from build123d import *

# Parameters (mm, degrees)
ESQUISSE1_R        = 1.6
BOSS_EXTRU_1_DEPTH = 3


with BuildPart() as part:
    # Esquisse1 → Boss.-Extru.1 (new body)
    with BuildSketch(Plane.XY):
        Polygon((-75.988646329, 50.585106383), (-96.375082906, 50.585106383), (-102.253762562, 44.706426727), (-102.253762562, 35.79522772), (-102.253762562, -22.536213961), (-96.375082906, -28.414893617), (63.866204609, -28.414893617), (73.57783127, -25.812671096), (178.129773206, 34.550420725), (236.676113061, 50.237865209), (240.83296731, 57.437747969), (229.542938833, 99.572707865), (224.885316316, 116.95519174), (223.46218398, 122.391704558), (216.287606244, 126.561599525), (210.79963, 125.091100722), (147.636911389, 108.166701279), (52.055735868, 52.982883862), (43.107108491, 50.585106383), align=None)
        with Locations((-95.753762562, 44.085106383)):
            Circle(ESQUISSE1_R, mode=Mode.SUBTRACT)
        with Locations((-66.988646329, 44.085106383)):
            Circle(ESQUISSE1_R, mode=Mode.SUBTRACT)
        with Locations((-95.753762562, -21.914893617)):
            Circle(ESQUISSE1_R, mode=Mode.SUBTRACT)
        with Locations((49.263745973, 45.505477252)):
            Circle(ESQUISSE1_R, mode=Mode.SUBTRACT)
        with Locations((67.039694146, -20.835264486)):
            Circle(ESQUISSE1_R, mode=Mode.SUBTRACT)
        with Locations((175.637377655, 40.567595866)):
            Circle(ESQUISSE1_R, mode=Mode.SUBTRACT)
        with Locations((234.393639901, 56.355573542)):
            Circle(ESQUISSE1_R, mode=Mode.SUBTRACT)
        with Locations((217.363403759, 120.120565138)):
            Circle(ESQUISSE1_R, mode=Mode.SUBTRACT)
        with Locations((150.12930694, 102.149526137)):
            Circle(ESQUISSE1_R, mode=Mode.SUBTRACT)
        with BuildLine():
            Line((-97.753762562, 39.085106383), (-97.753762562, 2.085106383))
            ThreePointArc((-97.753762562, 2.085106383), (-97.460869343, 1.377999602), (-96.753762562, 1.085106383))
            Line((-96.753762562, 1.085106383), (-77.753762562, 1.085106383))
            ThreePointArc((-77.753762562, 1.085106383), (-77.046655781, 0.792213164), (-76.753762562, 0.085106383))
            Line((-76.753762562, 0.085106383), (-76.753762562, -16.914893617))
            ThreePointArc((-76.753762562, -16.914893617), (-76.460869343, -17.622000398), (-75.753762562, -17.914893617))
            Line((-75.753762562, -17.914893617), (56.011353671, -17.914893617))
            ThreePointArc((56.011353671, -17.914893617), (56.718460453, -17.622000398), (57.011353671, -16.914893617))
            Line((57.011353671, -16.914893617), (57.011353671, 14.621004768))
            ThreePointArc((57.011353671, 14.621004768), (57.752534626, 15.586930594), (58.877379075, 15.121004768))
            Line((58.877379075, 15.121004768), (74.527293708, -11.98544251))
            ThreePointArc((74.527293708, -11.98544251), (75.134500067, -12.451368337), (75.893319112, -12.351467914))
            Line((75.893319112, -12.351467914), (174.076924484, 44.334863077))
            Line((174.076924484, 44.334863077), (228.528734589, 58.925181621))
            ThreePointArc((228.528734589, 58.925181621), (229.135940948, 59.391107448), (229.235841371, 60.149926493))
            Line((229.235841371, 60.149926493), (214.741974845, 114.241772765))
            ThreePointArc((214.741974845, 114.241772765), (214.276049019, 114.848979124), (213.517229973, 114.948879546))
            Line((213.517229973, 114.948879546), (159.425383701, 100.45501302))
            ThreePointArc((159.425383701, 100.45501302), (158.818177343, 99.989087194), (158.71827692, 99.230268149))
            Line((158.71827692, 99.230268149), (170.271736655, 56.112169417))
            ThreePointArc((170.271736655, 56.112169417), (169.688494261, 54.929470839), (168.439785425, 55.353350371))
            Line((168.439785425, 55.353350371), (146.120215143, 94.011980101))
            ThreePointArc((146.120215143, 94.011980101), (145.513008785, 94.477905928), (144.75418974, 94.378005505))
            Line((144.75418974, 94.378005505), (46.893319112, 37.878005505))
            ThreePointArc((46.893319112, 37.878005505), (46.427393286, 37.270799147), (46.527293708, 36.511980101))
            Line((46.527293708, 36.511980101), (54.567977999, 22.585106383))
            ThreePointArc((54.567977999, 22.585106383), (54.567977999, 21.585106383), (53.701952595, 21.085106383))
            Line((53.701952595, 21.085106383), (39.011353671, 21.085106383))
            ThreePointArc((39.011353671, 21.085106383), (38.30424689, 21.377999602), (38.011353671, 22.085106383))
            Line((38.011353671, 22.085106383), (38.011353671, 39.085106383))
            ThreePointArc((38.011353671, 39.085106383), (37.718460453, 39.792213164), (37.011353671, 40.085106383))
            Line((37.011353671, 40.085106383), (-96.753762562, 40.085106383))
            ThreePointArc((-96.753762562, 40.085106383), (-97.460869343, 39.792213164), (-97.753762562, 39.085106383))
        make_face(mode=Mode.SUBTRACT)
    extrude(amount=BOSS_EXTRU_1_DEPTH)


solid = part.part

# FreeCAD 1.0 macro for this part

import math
import FreeCAD as App
import Part
import Sketcher
Q = App.Units.Quantity


def add_polygon(sketch, points):
    """Adds a closed chain of lines whose ends are joined by coincident constraints."""
    first, n = sketch.GeometryCount, len(points)
    for a, b in zip(points, points[1:] + points[:1]):
        sketch.addGeometry(Part.LineSegment(App.Vector(*a, 0), App.Vector(*b, 0)), False)
    for i in range(n):
        sketch.addConstraint(Sketcher.Constraint("Coincident", first + i, 2, first + (i + 1) % n, 1))

doc = App.newDocument("Part")
body = doc.addObject("PartDesign::Body", "Body")

# Sketch on XY plane
sketch1 = body.newObject("Sketcher::SketchObject", "Sketch")
sketch1.AttachmentSupport = (doc.getObject("XY_Plane"), [""])
sketch1.MapMode = "FlatFace"
add_polygon(sketch1, [(-96.4, 50.6), (-102.3, 44.7), (-102.3, -22.5), (-96.4, -28.4), (63.9, -28.4), (73.6, -25.8), (178.1, 34.6), (236.7, 50.2), (240.8, 57.4), (229.5, 99.6), (224.9, 117), (223.5, 122.4), (216.3, 126.6), (210.8, 125.1), (147.6, 108.2), (52.1, 53), (43.1, 50.6)])  # lines 0-16
sketch1.addGeometry(Part.Circle(App.Vector(-95.8, -21.9, 0), App.Vector(0, 0, 1), 1.6), False)  # 17
sketch1.addGeometry(Part.Circle(App.Vector(67, -20.8, 0), App.Vector(0, 0, 1), 1.6), False)  # 18
sketch1.addGeometry(Part.Circle(App.Vector(-95.8, 44.1, 0), App.Vector(0, 0, 1), 1.6), False)  # 19
sketch1.addGeometry(Part.Circle(App.Vector(-67, 44.1, 0), App.Vector(0, 0, 1), 1.6), False)  # 20
sketch1.addGeometry(Part.Circle(App.Vector(49.3, 45.5, 0), App.Vector(0, 0, 1), 1.6), False)  # 21
sketch1.addGeometry(Part.LineSegment(App.Vector(-97.8, 2.1, 0), App.Vector(-97.8, 39.1, 0)), False)  # 22
sketch1.addGeometry(Part.ArcOfCircle(Part.Circle(App.Vector(-96.8, 39.1, 0), App.Vector(0, 0, 1), 1), math.radians(90), math.radians(180)), False)  # 23
sketch1.addGeometry(Part.LineSegment(App.Vector(-96.8, 40.1, 0), App.Vector(37, 40.1, 0)), False)  # 24
sketch1.addGeometry(Part.ArcOfCircle(Part.Circle(App.Vector(37, 39.1, 0), App.Vector(0, 0, 1), 1), math.radians(0), math.radians(90)), False)  # 25
sketch1.addGeometry(Part.LineSegment(App.Vector(38, 39.1, 0), App.Vector(38, 22.1, 0)), False)  # 26
sketch1.addGeometry(Part.ArcOfCircle(Part.Circle(App.Vector(39, 22.1, 0), App.Vector(0, 0, 1), 1), math.radians(-180), math.radians(-90)), False)  # 27
sketch1.addGeometry(Part.LineSegment(App.Vector(39, 21.1, 0), App.Vector(53.7, 21.1, 0)), False)  # 28
sketch1.addGeometry(Part.ArcOfCircle(Part.Circle(App.Vector(53.7, 22.1, 0), App.Vector(0, 0, 1), 1), math.radians(-90), math.radians(30)), False)  # 29
sketch1.addGeometry(Part.LineSegment(App.Vector(54.6, 22.6, 0), App.Vector(46.5, 36.5, 0)), False)  # 30
sketch1.addGeometry(Part.ArcOfCircle(Part.Circle(App.Vector(47.4, 37, 0), App.Vector(0, 0, 1), 1), math.radians(120), math.radians(210)), False)  # 31
sketch1.addGeometry(Part.LineSegment(App.Vector(46.9, 37.9, 0), App.Vector(144.8, 94.4, 0)), False)  # 32
sketch1.addGeometry(Part.ArcOfCircle(Part.Circle(App.Vector(145.3, 93.5, 0), App.Vector(0, 0, 1), 1), math.radians(30), math.radians(120)), False)  # 33
sketch1.addGeometry(Part.LineSegment(App.Vector(146.1, 94, 0), App.Vector(168.4, 55.4, 0)), False)  # 34
sketch1.addGeometry(Part.ArcOfCircle(Part.Circle(App.Vector(169.3, 55.9, 0), App.Vector(0, 0, 1), 1), math.radians(-150), math.radians(15)), False)  # 35
sketch1.addGeometry(Part.LineSegment(App.Vector(170.3, 56.1, 0), App.Vector(158.7, 99.2, 0)), False)  # 36
sketch1.addGeometry(Part.ArcOfCircle(Part.Circle(App.Vector(159.7, 99.5, 0), App.Vector(0, 0, 1), 1), math.radians(105), math.radians(195)), False)  # 37
sketch1.addGeometry(Part.LineSegment(App.Vector(159.4, 100.5, 0), App.Vector(213.5, 114.9, 0)), False)  # 38
sketch1.addGeometry(Part.ArcOfCircle(Part.Circle(App.Vector(213.8, 114, 0), App.Vector(0, 0, 1), 1), math.radians(15), math.radians(105)), False)  # 39
sketch1.addGeometry(Part.LineSegment(App.Vector(214.7, 114.2, 0), App.Vector(229.2, 60.1, 0)), False)  # 40
sketch1.addGeometry(Part.ArcOfCircle(Part.Circle(App.Vector(228.3, 59.9, 0), App.Vector(0, 0, 1), 1), math.radians(-75), math.radians(15)), False)  # 41
sketch1.addGeometry(Part.LineSegment(App.Vector(228.5, 58.9, 0), App.Vector(174.1, 44.3, 0)), False)  # 42
sketch1.addGeometry(Part.LineSegment(App.Vector(174.1, 44.3, 0), App.Vector(75.9, -12.4, 0)), False)  # 43
sketch1.addGeometry(Part.ArcOfCircle(Part.Circle(App.Vector(75.4, -11.5, 0), App.Vector(0, 0, 1), 1), math.radians(-150), math.radians(-60)), False)  # 44
sketch1.addGeometry(Part.LineSegment(App.Vector(74.5, -12, 0), App.Vector(58.9, 15.1, 0)), False)  # 45
sketch1.addGeometry(Part.ArcOfCircle(Part.Circle(App.Vector(58, 14.6, 0), App.Vector(0, 0, 1), 1), math.radians(30), math.radians(180)), False)  # 46
sketch1.addGeometry(Part.LineSegment(App.Vector(57, 14.6, 0), App.Vector(57, -16.9, 0)), False)  # 47
sketch1.addGeometry(Part.ArcOfCircle(Part.Circle(App.Vector(56, -16.9, 0), App.Vector(0, 0, 1), 1), math.radians(-90), math.radians(0)), False)  # 48
sketch1.addGeometry(Part.LineSegment(App.Vector(56, -17.9, 0), App.Vector(-75.8, -17.9, 0)), False)  # 49
sketch1.addGeometry(Part.ArcOfCircle(Part.Circle(App.Vector(-75.8, -16.9, 0), App.Vector(0, 0, 1), 1), math.radians(-180), math.radians(-90)), False)  # 50
sketch1.addGeometry(Part.LineSegment(App.Vector(-76.8, -16.9, 0), App.Vector(-76.8, 0.1, 0)), False)  # 51
sketch1.addGeometry(Part.ArcOfCircle(Part.Circle(App.Vector(-77.8, 0.1, 0), App.Vector(0, 0, 1), 1), math.radians(0), math.radians(90)), False)  # 52
sketch1.addGeometry(Part.LineSegment(App.Vector(-77.8, 1.1, 0), App.Vector(-96.8, 1.1, 0)), False)  # 53
sketch1.addGeometry(Part.ArcOfCircle(Part.Circle(App.Vector(-96.8, 2.1, 0), App.Vector(0, 0, 1), 1), math.radians(-180), math.radians(-90)), False)  # 54
sketch1.addGeometry(Part.Circle(App.Vector(175.6, 40.6, 0), App.Vector(0, 0, 1), 1.6), False)  # 55
sketch1.addGeometry(Part.Circle(App.Vector(234.4, 56.4, 0), App.Vector(0, 0, 1), 1.6), False)  # 56
sketch1.addGeometry(Part.Circle(App.Vector(150.1, 102.1, 0), App.Vector(0, 0, 1), 1.6), False)  # 57
sketch1.addGeometry(Part.Circle(App.Vector(217.4, 120.1, 0), App.Vector(0, 0, 1), 1.6), False)  # 58
sketch1.addConstraint([
    Sketcher.Constraint("Tangent", 22, 2, 23, 2),
    Sketcher.Constraint("Tangent", 23, 1, 24, 1),
    Sketcher.Constraint("Tangent", 24, 2, 25, 2),
    Sketcher.Constraint("Tangent", 25, 1, 26, 1),
    Sketcher.Constraint("Tangent", 26, 2, 27, 1),
    Sketcher.Constraint("Tangent", 27, 2, 28, 1),
    Sketcher.Constraint("Tangent", 28, 2, 29, 1),
    Sketcher.Constraint("Tangent", 29, 2, 30, 1),
    Sketcher.Constraint("Tangent", 30, 2, 31, 2),
    Sketcher.Constraint("Tangent", 31, 1, 32, 1),
    Sketcher.Constraint("Tangent", 32, 2, 33, 2),
    Sketcher.Constraint("Tangent", 33, 1, 34, 1),
    Sketcher.Constraint("Tangent", 34, 2, 35, 1),
    Sketcher.Constraint("Tangent", 35, 2, 36, 1),
    Sketcher.Constraint("Tangent", 36, 2, 37, 2),
    Sketcher.Constraint("Tangent", 37, 1, 38, 1),
    Sketcher.Constraint("Tangent", 38, 2, 39, 2),
    Sketcher.Constraint("Tangent", 39, 1, 40, 1),
    Sketcher.Constraint("Tangent", 40, 2, 41, 2),
    Sketcher.Constraint("Tangent", 41, 1, 42, 1),
    Sketcher.Constraint("Coincident", 42, 2, 43, 1),
    Sketcher.Constraint("Tangent", 43, 2, 44, 2),
    Sketcher.Constraint("Tangent", 44, 1, 45, 1),
    Sketcher.Constraint("Tangent", 45, 2, 46, 1),
    Sketcher.Constraint("Tangent", 46, 2, 47, 1),
    Sketcher.Constraint("Tangent", 47, 2, 48, 2),
    Sketcher.Constraint("Tangent", 48, 1, 49, 1),
    Sketcher.Constraint("Tangent", 49, 2, 50, 2),
    Sketcher.Constraint("Tangent", 50, 1, 51, 1),
    Sketcher.Constraint("Tangent", 51, 2, 52, 1),
    Sketcher.Constraint("Tangent", 52, 2, 53, 1),
    Sketcher.Constraint("Tangent", 53, 2, 54, 2),
    Sketcher.Constraint("Tangent", 54, 1, 22, 1),
    Sketcher.Constraint("Vertical", 1),
    Sketcher.Constraint("Horizontal", 3),
    Sketcher.Constraint("Horizontal", 16),
    Sketcher.Constraint("Vertical", 22),
    Sketcher.Constraint("Horizontal", 24),
    Sketcher.Constraint("Vertical", 26),
    Sketcher.Constraint("Horizontal", 28),
    Sketcher.Constraint("Vertical", 47),
    Sketcher.Constraint("Horizontal", 49),
    Sketcher.Constraint("Vertical", 51),
    Sketcher.Constraint("Horizontal", 53),
    Sketcher.Constraint("Equal", 17, 18),
    Sketcher.Constraint("Equal", 18, 19),
    Sketcher.Constraint("Equal", 19, 20),
    Sketcher.Constraint("Equal", 20, 21),
    Sketcher.Constraint("Equal", 23, 25),
    Sketcher.Constraint("Equal", 25, 27),
    Sketcher.Constraint("Equal", 27, 29),
    Sketcher.Constraint("Equal", 29, 31),
    Sketcher.Constraint("Equal", 31, 33),
    Sketcher.Constraint("Equal", 33, 35),
    Sketcher.Constraint("Equal", 35, 37),
    Sketcher.Constraint("Equal", 37, 39),
    Sketcher.Constraint("Equal", 39, 41),
    Sketcher.Constraint("Equal", 41, 44),
    Sketcher.Constraint("Equal", 44, 46),
    Sketcher.Constraint("Equal", 46, 48),
    Sketcher.Constraint("Equal", 48, 50),
    Sketcher.Constraint("Equal", 50, 52),
    Sketcher.Constraint("Equal", 52, 54),
    Sketcher.Constraint("Equal", 21, 55),
    Sketcher.Constraint("Equal", 55, 56),
    Sketcher.Constraint("Equal", 56, 57),
    Sketcher.Constraint("Equal", 57, 58),
    Sketcher.Constraint("Perpendicular", 0, 2),
    Sketcher.Constraint("Parallel", 4, 6),
    Sketcher.Constraint("Perpendicular", 6, 8),
    Sketcher.Constraint("Parallel", 8, 9),
    Sketcher.Constraint("Perpendicular", 9, 12),
    Sketcher.Constraint("Parallel", 12, 13),
    Sketcher.Constraint("Parallel", 5, 14),
    Sketcher.Constraint("Parallel", 13, 15),
    Sketcher.Constraint("Perpendicular", 14, 30),
    Sketcher.Constraint("Perpendicular", 30, 32),
    Sketcher.Constraint("Perpendicular", 32, 34),
    Sketcher.Constraint("Perpendicular", 15, 36),
    Sketcher.Constraint("Perpendicular", 36, 38),
    Sketcher.Constraint("Perpendicular", 38, 40),
    Sketcher.Constraint("Perpendicular", 40, 42),
    Sketcher.Constraint("Perpendicular", 34, 43),
    Sketcher.Constraint("Perpendicular", 43, 45),
    Sketcher.Constraint("Horizontal", 19, 3, 20, 3),
    Sketcher.Constraint("Vertical", 17, 3, 19, 3),
    Sketcher.Constraint("Vertical", 2, 2, 16, 2),
    Sketcher.Constraint("Equal", 26, 51),
    Sketcher.Constraint("Equal", 0, 2),
    Sketcher.Constraint("Equal", 2, 7),
    Sketcher.Constraint("Equal", 34, 36),
    Sketcher.Constraint("Equal", 38, 40),
    Sketcher.Constraint("Radius", 23, Q("1 mm")),
    Sketcher.Constraint("Diameter", 17, Q("3.2 mm")),
    Sketcher.Constraint("DistanceX", 53, 2, 53, 1, Q("19 mm")),
    Sketcher.Constraint("DistanceY", 22, 1, 22, 2, Q("37 mm")),
    Sketcher.Constraint("DistanceY", 26, 2, 26, 1, Q("17 mm")),
    Sketcher.Constraint("Angle", 4, Q("15 deg")),
    Sketcher.Constraint("Angle", 5, Q("30 deg")),
    Sketcher.Constraint("Angle", 7, Q("60 deg")),
    Sketcher.Constraint("Distance", 32, Q("113 mm")),
    Sketcher.Constraint("Distance", 38, Q("56 mm")),
    Sketcher.Constraint("DistanceX", 28, 1, 28, 2, Q("14.690599 mm")),
    Sketcher.Constraint("DistanceY", 47, 2, 47, 1, Q("31.535898 mm")),
    Sketcher.Constraint("Distance", 15, Q("9.264301 mm")),
    Sketcher.Constraint("DistanceX", 16, 2, 16, 1, Q("139.482191 mm")),
    Sketcher.Constraint("DistanceY", 1, 2, 1, 1, Q("67.242641 mm")),
    Sketcher.Constraint("DistanceY", -1, 1, 11, 2, Q("126.5616 mm")),
    Sketcher.Constraint("DistanceY", -1, 1, 12, 2, Q("125.091101 mm")),
    Sketcher.Constraint("DistanceY", -1, 1, 13, 2, Q("108.166701 mm")),
    Sketcher.Constraint("Distance", 0, Q("8.313708 mm")),
    Sketcher.Constraint("Distance", 6, Q("60.611631 mm")),
    Sketcher.Constraint("Distance", 8, Q("43.62132 mm")),
    Sketcher.Constraint("Distance", 9, Q("17.995672 mm")),
    Sketcher.Constraint("Distance", 11, Q("8.298349 mm")),
    Sketcher.Constraint("Distance", 30, Q("16.081369 mm")),
    Sketcher.Constraint("Distance", 34, Q("44.639141 mm")),
    Sketcher.Constraint("Distance", 42, Q("56.372662 mm")),
    Sketcher.Constraint("Distance", 43, Q("113.372662 mm")),
    Sketcher.Constraint("DistanceX", 3, 1, 3, 2, Q("160.241288 mm")),
    Sketcher.Constraint("DistanceX", 24, 1, 24, 2, Q("133.765116 mm")),
    Sketcher.Constraint("DistanceX", -1, 1, 31, 3, Q("47.393319 mm")),
    Sketcher.Constraint("DistanceY", -1, 1, 31, 3, Q("37.01198 mm")),
    Sketcher.Constraint("DistanceX", -1, 1, 56, 3, Q("234.39364 mm")),
    Sketcher.Constraint("DistanceX", -1, 1, 4, 2, Q("73.577831 mm")),
    Sketcher.Constraint("DistanceY", 4, 2, -1, 1, Q("25.812671 mm")),
    Sketcher.Constraint("DistanceY", -1, 1, 5, 2, Q("34.550421 mm")),
    Sketcher.Constraint("DistanceX", -1, 1, 12, 2, Q("210.79963 mm")),
    Sketcher.Constraint("Distance", 10, Q("5.619695 mm")),
    Sketcher.Constraint("DistanceX", 17, 3, -1, 1, Q("95.753763 mm")),
    Sketcher.Constraint("DistanceY", 17, 3, -1, 1, Q("21.914894 mm")),
    Sketcher.Constraint("DistanceX", -1, 1, 18, 3, Q("67.039694 mm")),
    Sketcher.Constraint("DistanceY", 18, 3, -1, 1, Q("20.835264 mm")),
    Sketcher.Constraint("DistanceY", -1, 1, 19, 3, Q("44.085106 mm")),
    Sketcher.Constraint("DistanceX", 20, 3, -1, 1, Q("66.988646 mm")),
    Sketcher.Constraint("DistanceX", -1, 1, 21, 3, Q("49.263746 mm")),
    Sketcher.Constraint("DistanceY", -1, 1, 21, 3, Q("45.505477 mm")),
    Sketcher.Constraint("DistanceX", -1, 1, 55, 3, Q("175.637378 mm")),
    Sketcher.Constraint("DistanceY", -1, 1, 55, 3, Q("40.567596 mm")),
    Sketcher.Constraint("DistanceY", -1, 1, 56, 3, Q("56.355574 mm")),
    Sketcher.Constraint("DistanceX", -1, 1, 57, 3, Q("150.129307 mm")),
    Sketcher.Constraint("DistanceY", -1, 1, 57, 3, Q("102.149526 mm")),
    Sketcher.Constraint("DistanceX", -1, 1, 58, 3, Q("217.363404 mm")),
    Sketcher.Constraint("DistanceY", -1, 1, 58, 3, Q("120.120565 mm")),
])
pad1 = body.newObject("PartDesign::Pad", "Pad")
pad1.Profile = sketch1
pad1.Length = 3

doc.recompute()
